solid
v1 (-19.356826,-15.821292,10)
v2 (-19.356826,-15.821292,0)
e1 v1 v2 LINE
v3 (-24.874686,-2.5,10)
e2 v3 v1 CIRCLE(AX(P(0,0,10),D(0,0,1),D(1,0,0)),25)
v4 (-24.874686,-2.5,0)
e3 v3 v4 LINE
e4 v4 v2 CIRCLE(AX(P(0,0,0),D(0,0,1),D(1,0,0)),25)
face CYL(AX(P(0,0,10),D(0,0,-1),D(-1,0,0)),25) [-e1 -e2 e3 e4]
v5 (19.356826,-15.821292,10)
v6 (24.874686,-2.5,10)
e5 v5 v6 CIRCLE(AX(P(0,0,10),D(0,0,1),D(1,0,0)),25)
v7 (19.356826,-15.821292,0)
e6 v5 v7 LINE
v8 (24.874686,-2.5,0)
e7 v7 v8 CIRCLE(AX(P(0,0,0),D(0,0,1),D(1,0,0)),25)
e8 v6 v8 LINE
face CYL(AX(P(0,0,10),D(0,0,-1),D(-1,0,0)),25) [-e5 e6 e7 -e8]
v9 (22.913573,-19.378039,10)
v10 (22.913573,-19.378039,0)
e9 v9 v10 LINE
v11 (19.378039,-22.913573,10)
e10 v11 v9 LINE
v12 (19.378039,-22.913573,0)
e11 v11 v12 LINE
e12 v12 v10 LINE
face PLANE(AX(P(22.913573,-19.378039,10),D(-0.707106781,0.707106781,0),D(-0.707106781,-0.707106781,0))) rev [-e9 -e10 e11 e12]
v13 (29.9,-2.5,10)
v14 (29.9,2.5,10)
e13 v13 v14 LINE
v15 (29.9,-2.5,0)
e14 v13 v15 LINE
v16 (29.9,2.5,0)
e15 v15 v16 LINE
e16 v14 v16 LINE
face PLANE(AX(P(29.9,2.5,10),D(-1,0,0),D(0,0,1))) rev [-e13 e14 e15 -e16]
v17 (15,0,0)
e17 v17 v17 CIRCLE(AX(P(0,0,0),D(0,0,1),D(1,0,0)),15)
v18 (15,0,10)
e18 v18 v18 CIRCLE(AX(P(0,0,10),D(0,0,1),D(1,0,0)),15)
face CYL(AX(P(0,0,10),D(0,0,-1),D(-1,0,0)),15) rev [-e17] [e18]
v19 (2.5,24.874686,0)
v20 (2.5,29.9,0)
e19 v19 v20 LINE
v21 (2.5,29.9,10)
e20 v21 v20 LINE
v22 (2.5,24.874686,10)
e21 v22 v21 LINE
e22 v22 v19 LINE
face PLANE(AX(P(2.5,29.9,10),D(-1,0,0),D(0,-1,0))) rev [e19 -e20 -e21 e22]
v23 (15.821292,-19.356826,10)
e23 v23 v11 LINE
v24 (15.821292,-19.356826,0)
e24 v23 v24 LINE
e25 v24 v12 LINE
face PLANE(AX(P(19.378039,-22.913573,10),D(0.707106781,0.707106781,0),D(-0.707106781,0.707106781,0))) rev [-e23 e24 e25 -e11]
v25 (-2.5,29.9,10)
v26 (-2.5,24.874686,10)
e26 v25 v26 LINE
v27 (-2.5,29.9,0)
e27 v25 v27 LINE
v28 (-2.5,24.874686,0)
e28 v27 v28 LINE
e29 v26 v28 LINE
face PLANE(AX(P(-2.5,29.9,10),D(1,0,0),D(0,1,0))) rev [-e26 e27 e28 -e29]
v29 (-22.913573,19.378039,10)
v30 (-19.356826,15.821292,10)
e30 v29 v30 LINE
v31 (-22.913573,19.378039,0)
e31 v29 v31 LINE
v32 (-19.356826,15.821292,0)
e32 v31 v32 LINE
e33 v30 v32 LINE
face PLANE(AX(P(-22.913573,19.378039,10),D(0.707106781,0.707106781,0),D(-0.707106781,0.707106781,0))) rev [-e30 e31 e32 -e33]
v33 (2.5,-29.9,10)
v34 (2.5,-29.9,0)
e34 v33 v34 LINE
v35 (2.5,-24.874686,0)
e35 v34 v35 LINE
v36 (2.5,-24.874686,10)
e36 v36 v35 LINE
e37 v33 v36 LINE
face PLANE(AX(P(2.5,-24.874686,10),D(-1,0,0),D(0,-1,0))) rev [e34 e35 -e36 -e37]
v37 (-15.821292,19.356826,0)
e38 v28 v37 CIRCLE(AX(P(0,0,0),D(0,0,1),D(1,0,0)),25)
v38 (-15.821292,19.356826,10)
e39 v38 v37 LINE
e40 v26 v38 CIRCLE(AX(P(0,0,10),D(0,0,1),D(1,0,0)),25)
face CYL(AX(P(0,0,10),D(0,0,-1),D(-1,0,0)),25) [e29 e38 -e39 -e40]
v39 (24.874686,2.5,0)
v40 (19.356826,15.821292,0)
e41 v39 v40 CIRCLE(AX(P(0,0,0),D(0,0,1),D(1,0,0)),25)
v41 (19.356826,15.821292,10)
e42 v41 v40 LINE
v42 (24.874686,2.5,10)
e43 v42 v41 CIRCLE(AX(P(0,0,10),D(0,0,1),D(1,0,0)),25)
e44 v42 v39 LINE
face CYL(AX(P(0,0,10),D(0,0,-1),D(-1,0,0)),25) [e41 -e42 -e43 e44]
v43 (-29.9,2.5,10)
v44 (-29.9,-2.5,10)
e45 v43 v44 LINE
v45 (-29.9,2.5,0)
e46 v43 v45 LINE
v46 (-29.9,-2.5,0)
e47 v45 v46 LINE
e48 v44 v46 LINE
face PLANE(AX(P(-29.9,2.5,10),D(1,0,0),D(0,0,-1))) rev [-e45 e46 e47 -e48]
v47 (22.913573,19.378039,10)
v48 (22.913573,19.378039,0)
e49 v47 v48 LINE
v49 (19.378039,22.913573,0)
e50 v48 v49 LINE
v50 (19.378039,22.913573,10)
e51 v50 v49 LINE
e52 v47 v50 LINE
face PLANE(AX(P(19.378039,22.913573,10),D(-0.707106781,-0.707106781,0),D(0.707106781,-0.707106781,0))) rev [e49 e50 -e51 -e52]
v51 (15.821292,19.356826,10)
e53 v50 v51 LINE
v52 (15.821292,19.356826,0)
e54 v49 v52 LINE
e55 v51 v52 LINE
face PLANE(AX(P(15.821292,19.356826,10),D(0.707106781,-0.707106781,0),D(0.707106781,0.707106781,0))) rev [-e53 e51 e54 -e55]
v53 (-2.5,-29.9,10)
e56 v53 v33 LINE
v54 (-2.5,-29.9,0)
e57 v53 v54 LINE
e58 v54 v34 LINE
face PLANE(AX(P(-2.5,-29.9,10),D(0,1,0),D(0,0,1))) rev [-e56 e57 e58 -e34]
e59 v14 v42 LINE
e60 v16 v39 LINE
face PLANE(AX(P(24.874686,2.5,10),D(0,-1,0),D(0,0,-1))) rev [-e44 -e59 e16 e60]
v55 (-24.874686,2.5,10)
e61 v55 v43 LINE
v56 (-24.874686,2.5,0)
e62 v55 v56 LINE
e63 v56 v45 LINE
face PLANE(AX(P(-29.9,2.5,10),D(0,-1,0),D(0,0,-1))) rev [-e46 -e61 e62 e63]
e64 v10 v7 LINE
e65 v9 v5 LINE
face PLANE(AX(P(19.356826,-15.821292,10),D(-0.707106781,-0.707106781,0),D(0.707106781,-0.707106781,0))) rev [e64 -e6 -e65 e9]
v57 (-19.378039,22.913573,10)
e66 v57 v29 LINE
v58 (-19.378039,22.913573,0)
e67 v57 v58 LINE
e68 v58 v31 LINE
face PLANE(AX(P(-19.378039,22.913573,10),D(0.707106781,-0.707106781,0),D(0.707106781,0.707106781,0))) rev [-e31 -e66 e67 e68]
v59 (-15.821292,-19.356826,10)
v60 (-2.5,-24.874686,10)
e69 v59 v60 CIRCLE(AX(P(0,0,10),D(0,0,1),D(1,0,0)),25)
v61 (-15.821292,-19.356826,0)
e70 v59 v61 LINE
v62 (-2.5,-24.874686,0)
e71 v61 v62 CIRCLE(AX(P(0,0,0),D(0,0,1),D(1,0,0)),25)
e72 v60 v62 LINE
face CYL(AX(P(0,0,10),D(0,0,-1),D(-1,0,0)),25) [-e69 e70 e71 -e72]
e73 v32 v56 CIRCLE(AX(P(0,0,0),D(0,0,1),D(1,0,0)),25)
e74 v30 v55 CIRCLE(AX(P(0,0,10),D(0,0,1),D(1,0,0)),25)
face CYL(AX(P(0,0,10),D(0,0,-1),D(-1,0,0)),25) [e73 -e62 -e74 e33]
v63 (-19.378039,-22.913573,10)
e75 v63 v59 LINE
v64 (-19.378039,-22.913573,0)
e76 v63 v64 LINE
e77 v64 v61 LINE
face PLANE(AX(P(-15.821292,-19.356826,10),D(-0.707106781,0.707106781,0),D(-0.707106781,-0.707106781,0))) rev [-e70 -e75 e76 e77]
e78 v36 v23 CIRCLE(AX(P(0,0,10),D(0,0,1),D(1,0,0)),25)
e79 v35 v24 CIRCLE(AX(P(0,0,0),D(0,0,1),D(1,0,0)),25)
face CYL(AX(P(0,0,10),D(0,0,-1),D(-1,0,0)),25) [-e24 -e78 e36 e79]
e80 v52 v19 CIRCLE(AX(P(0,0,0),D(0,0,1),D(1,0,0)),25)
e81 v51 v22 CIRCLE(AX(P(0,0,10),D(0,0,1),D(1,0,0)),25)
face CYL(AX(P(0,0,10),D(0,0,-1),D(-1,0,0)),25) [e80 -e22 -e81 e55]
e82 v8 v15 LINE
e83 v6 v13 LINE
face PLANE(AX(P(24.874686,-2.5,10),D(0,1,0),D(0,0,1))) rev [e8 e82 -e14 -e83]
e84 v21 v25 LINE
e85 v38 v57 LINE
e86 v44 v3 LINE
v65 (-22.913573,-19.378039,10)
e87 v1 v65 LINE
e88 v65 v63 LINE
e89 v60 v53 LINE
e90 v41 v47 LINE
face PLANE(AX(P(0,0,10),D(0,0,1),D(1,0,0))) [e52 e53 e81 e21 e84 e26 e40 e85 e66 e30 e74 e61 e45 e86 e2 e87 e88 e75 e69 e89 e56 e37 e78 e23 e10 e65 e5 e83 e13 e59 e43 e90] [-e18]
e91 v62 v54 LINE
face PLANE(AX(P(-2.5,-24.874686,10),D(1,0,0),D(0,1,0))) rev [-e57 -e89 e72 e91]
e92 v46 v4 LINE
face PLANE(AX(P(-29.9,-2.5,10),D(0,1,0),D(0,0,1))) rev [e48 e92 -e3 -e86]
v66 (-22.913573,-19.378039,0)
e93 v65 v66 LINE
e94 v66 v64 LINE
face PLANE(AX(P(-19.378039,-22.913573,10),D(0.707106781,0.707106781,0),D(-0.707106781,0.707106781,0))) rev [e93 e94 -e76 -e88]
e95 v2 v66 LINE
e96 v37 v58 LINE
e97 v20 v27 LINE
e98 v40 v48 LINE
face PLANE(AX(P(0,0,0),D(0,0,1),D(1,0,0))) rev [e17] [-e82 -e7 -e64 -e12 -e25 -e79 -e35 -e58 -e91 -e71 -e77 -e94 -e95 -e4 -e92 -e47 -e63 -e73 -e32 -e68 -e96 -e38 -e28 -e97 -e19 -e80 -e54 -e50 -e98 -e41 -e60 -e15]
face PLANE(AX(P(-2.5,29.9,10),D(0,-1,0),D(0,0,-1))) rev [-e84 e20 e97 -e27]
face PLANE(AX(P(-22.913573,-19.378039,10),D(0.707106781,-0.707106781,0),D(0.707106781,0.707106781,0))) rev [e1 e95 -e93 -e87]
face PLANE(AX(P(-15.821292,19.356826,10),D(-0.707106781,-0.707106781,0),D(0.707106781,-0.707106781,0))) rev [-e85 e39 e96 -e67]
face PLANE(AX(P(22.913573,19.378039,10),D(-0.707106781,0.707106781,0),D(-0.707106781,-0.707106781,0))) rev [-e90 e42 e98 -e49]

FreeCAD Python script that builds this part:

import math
import FreeCAD as App
import Part
import Sketcher

V = App.Vector

doc = App.newDocument("Part")
body = doc.addObject("PartDesign::Body", "Body")

sketch1 = body.newObject("Sketcher::SketchObject", "Sketch")
sketch1.AttachmentSupport = (doc.getObject("XY_Plane"), [""])
sketch1.MapMode = "FlatFace"
sketch1.addGeometry([
    Part.LineSegment(V(19, 16, 0), V(23, 19, 0)),
    Part.LineSegment(V(23, 19, 0), V(19, 23, 0)),
    Part.LineSegment(V(19, 23, 0), V(16, 19, 0)),
    Part.ArcOfCircle(Part.Circle(V(0, 0, 0), V(0, 0, 1), 25), math.radians(51), math.radians(84)),
    Part.LineSegment(V(2, 25, 0), V(2, 30, 0)),
    Part.LineSegment(V(2, 30, 0), V(-2, 30, 0)),
    Part.LineSegment(V(-2, 30, 0), V(-2, 25, 0)),
    Part.ArcOfCircle(Part.Circle(V(0, 0, 0), V(0, 0, 1), 25), math.radians(96), math.radians(129)),
    Part.LineSegment(V(-16, 19, 0), V(-19, 23, 0)),
    Part.LineSegment(V(-19, 23, 0), V(-23, 19, 0)),
    Part.LineSegment(V(-23, 19, 0), V(-19, 16, 0)),
    Part.ArcOfCircle(Part.Circle(V(0, 0, 0), V(0, 0, 1), 25), math.radians(141), math.radians(174)),
    Part.LineSegment(V(-25, 2, 0), V(-30, 2, 0)),
    Part.LineSegment(V(-30, 2, 0), V(-30, -2, 0)),
    Part.LineSegment(V(-30, -2, 0), V(-25, -2, 0)),
    Part.ArcOfCircle(Part.Circle(V(0, 0, 0), V(0, 0, 1), 25), math.radians(-174), math.radians(-141)),
    Part.LineSegment(V(-19, -16, 0), V(-23, -19, 0)),
    Part.LineSegment(V(-23, -19, 0), V(-19, -23, 0)),
    Part.LineSegment(V(-19, -23, 0), V(-16, -19, 0)),
    Part.ArcOfCircle(Part.Circle(V(0, 0, 0), V(0, 0, 1), 25), math.radians(-129), math.radians(-96)),
    Part.LineSegment(V(-2, -25, 0), V(-2, -30, 0)),
    Part.LineSegment(V(-2, -30, 0), V(2, -30, 0)),
    Part.LineSegment(V(2, -30, 0), V(2, -25, 0)),
    Part.ArcOfCircle(Part.Circle(V(0, 0, 0), V(0, 0, 1), 25), math.radians(-84), math.radians(-51)),
    Part.LineSegment(V(16, -19, 0), V(19, -23, 0)),
    Part.LineSegment(V(19, -23, 0), V(23, -19, 0)),
    Part.LineSegment(V(23, -19, 0), V(19, -16, 0)),
    Part.ArcOfCircle(Part.Circle(V(0, 0, 0), V(0, 0, 1), 25), math.radians(-39), math.radians(-6)),
    Part.LineSegment(V(25, -2, 0), V(30, -2, 0)),
    Part.LineSegment(V(30, -2, 0), V(30, 2, 0)),
    Part.LineSegment(V(30, 2, 0), V(25, 2, 0)),
    Part.ArcOfCircle(Part.Circle(V(0, 0, 0), V(0, 0, 1), 25), math.radians(6), math.radians(39)),
    Part.Circle(V(0, 0, 0), V(0, 0, 1), 15),
], False)
sketch1.addConstraint([
    Sketcher.Constraint("Coincident", 0, 2, 1, 1),
    Sketcher.Constraint("Coincident", 1, 2, 2, 1),
    Sketcher.Constraint("Coincident", 2, 2, 3, 1),
    Sketcher.Constraint("Coincident", 3, 2, 4, 1),
    Sketcher.Constraint("Coincident", 4, 2, 5, 1),
    Sketcher.Constraint("Coincident", 5, 2, 6, 1),
    Sketcher.Constraint("Coincident", 6, 2, 7, 1),
    Sketcher.Constraint("Coincident", 7, 2, 8, 1),
    Sketcher.Constraint("Coincident", 8, 2, 9, 1),
    Sketcher.Constraint("Coincident", 9, 2, 10, 1),
    Sketcher.Constraint("Coincident", 10, 2, 11, 1),
    Sketcher.Constraint("Coincident", 11, 2, 12, 1),
    Sketcher.Constraint("Coincident", 12, 2, 13, 1),
    Sketcher.Constraint("Coincident", 13, 2, 14, 1),
    Sketcher.Constraint("Coincident", 14, 2, 15, 1),
    Sketcher.Constraint("Coincident", 15, 2, 16, 1),
    Sketcher.Constraint("Coincident", 16, 2, 17, 1),
    Sketcher.Constraint("Coincident", 17, 2, 18, 1),
    Sketcher.Constraint("Coincident", 18, 2, 19, 1),
    Sketcher.Constraint("Coincident", 19, 2, 20, 1),
    Sketcher.Constraint("Coincident", 20, 2, 21, 1),
    Sketcher.Constraint("Coincident", 21, 2, 22, 1),
    Sketcher.Constraint("Coincident", 22, 2, 23, 1),
    Sketcher.Constraint("Coincident", 23, 2, 24, 1),
    Sketcher.Constraint("Coincident", 24, 2, 25, 1),
    Sketcher.Constraint("Coincident", 25, 2, 26, 1),
    Sketcher.Constraint("Coincident", 26, 2, 27, 1),
    Sketcher.Constraint("Coincident", 27, 2, 28, 1),
    Sketcher.Constraint("Coincident", 28, 2, 29, 1),
    Sketcher.Constraint("Coincident", 29, 2, 30, 1),
    Sketcher.Constraint("Coincident", 30, 2, 31, 1),
    Sketcher.Constraint("Coincident", 31, 2, 0, 1),
    Sketcher.Constraint("Vertical", 4),
    Sketcher.Constraint("Horizontal", 5),
    Sketcher.Constraint("Vertical", 6),
    Sketcher.Constraint("Horizontal", 12),
    Sketcher.Constraint("Vertical", 13),
    Sketcher.Constraint("Horizontal", 14),
    Sketcher.Constraint("Vertical", 20),
    Sketcher.Constraint("Horizontal", 21),
    Sketcher.Constraint("Vertical", 22),
    Sketcher.Constraint("Horizontal", 28),
    Sketcher.Constraint("Vertical", 29),
    Sketcher.Constraint("Horizontal", 30),
    Sketcher.Constraint("Coincident", 3, 3, -1, 1),
    Sketcher.Constraint("Coincident", 7, 3, -1, 1),
    Sketcher.Constraint("Coincident", 11, 3, -1, 1),
    Sketcher.Constraint("Coincident", 15, 3, -1, 1),
    Sketcher.Constraint("Coincident", 19, 3, -1, 1),
    Sketcher.Constraint("Coincident", 23, 3, -1, 1),
    Sketcher.Constraint("Coincident", 27, 3, -1, 1),
    Sketcher.Constraint("Coincident", 31, 3, -1, 1),
    Sketcher.Constraint("Coincident", 32, 3, -1, 1),
    Sketcher.Constraint("Equal", 3, 7),
    Sketcher.Constraint("Equal", 7, 11),
    Sketcher.Constraint("Equal", 11, 15),
    Sketcher.Constraint("Equal", 15, 19),
    Sketcher.Constraint("Equal", 19, 23),
    Sketcher.Constraint("Equal", 23, 27),
    Sketcher.Constraint("Equal", 27, 31),
    Sketcher.Constraint("Symmetric", 0, 2, 16, 2, -1, 1),
    Sketcher.Constraint("Symmetric", 1, 2, 17, 2, -1, 1),
    Sketcher.Constraint("Symmetric", 4, 2, 20, 2, -1, 1),
    Sketcher.Constraint("Symmetric", 8, 2, 24, 2, -1, 1),
    Sketcher.Constraint("Symmetric", 9, 2, 25, 2, -1, 1),
    Sketcher.Constraint("Symmetric", 12, 2, 28, 2, -1, 1),
    Sketcher.Constraint("Symmetric", 1, 2, 8, 2, -2),
    Sketcher.Constraint("Symmetric", 0, 2, 9, 2, -2),
    Sketcher.Constraint("Perpendicular", 0, 1),
    Sketcher.Constraint("Perpendicular", 1, 2),
    Sketcher.Constraint("Perpendicular", 2, 8),
    Sketcher.Constraint("Perpendicular", 8, 9),
    Sketcher.Constraint("Perpendicular", 9, 10),
    Sketcher.Constraint("Perpendicular", 10, 16),
    Sketcher.Constraint("Perpendicular", 17, 18),
    Sketcher.Constraint("Perpendicular", 18, 24),
    Sketcher.Constraint("Perpendicular", 25, 26),
    Sketcher.Constraint("Horizontal", 3, 2, 6, 2),
    Sketcher.Constraint("Horizontal", 19, 2, 22, 2),
    Sketcher.Constraint("Horizontal", 14, 2, 27, 2),
    Sketcher.Constraint("Horizontal", 12, 2, 29, 2),
    Sketcher.Constraint("Equal", 30, 4),
    Sketcher.Constraint("Equal", 21, 13),
    Sketcher.Constraint("Equal", 0, 2),
    Sketcher.Constraint("Diameter", 32, 30.0),
    Sketcher.Constraint("Radius", 3, 25.0),
    Sketcher.Constraint("DistanceX", 5, 2, 5, 1, 5.0),
    Sketcher.Constraint("Distance", 1, 5.0),
    Sketcher.Constraint("DistanceY", -1, 1, 4, 2, 29.9),
    Sketcher.Constraint("Distance", 0, 5.03),
])
pad1 = body.newObject("PartDesign::Pad", "Pad")
pad1.Profile = sketch1
pad1.Length = 10

doc.recompute()
